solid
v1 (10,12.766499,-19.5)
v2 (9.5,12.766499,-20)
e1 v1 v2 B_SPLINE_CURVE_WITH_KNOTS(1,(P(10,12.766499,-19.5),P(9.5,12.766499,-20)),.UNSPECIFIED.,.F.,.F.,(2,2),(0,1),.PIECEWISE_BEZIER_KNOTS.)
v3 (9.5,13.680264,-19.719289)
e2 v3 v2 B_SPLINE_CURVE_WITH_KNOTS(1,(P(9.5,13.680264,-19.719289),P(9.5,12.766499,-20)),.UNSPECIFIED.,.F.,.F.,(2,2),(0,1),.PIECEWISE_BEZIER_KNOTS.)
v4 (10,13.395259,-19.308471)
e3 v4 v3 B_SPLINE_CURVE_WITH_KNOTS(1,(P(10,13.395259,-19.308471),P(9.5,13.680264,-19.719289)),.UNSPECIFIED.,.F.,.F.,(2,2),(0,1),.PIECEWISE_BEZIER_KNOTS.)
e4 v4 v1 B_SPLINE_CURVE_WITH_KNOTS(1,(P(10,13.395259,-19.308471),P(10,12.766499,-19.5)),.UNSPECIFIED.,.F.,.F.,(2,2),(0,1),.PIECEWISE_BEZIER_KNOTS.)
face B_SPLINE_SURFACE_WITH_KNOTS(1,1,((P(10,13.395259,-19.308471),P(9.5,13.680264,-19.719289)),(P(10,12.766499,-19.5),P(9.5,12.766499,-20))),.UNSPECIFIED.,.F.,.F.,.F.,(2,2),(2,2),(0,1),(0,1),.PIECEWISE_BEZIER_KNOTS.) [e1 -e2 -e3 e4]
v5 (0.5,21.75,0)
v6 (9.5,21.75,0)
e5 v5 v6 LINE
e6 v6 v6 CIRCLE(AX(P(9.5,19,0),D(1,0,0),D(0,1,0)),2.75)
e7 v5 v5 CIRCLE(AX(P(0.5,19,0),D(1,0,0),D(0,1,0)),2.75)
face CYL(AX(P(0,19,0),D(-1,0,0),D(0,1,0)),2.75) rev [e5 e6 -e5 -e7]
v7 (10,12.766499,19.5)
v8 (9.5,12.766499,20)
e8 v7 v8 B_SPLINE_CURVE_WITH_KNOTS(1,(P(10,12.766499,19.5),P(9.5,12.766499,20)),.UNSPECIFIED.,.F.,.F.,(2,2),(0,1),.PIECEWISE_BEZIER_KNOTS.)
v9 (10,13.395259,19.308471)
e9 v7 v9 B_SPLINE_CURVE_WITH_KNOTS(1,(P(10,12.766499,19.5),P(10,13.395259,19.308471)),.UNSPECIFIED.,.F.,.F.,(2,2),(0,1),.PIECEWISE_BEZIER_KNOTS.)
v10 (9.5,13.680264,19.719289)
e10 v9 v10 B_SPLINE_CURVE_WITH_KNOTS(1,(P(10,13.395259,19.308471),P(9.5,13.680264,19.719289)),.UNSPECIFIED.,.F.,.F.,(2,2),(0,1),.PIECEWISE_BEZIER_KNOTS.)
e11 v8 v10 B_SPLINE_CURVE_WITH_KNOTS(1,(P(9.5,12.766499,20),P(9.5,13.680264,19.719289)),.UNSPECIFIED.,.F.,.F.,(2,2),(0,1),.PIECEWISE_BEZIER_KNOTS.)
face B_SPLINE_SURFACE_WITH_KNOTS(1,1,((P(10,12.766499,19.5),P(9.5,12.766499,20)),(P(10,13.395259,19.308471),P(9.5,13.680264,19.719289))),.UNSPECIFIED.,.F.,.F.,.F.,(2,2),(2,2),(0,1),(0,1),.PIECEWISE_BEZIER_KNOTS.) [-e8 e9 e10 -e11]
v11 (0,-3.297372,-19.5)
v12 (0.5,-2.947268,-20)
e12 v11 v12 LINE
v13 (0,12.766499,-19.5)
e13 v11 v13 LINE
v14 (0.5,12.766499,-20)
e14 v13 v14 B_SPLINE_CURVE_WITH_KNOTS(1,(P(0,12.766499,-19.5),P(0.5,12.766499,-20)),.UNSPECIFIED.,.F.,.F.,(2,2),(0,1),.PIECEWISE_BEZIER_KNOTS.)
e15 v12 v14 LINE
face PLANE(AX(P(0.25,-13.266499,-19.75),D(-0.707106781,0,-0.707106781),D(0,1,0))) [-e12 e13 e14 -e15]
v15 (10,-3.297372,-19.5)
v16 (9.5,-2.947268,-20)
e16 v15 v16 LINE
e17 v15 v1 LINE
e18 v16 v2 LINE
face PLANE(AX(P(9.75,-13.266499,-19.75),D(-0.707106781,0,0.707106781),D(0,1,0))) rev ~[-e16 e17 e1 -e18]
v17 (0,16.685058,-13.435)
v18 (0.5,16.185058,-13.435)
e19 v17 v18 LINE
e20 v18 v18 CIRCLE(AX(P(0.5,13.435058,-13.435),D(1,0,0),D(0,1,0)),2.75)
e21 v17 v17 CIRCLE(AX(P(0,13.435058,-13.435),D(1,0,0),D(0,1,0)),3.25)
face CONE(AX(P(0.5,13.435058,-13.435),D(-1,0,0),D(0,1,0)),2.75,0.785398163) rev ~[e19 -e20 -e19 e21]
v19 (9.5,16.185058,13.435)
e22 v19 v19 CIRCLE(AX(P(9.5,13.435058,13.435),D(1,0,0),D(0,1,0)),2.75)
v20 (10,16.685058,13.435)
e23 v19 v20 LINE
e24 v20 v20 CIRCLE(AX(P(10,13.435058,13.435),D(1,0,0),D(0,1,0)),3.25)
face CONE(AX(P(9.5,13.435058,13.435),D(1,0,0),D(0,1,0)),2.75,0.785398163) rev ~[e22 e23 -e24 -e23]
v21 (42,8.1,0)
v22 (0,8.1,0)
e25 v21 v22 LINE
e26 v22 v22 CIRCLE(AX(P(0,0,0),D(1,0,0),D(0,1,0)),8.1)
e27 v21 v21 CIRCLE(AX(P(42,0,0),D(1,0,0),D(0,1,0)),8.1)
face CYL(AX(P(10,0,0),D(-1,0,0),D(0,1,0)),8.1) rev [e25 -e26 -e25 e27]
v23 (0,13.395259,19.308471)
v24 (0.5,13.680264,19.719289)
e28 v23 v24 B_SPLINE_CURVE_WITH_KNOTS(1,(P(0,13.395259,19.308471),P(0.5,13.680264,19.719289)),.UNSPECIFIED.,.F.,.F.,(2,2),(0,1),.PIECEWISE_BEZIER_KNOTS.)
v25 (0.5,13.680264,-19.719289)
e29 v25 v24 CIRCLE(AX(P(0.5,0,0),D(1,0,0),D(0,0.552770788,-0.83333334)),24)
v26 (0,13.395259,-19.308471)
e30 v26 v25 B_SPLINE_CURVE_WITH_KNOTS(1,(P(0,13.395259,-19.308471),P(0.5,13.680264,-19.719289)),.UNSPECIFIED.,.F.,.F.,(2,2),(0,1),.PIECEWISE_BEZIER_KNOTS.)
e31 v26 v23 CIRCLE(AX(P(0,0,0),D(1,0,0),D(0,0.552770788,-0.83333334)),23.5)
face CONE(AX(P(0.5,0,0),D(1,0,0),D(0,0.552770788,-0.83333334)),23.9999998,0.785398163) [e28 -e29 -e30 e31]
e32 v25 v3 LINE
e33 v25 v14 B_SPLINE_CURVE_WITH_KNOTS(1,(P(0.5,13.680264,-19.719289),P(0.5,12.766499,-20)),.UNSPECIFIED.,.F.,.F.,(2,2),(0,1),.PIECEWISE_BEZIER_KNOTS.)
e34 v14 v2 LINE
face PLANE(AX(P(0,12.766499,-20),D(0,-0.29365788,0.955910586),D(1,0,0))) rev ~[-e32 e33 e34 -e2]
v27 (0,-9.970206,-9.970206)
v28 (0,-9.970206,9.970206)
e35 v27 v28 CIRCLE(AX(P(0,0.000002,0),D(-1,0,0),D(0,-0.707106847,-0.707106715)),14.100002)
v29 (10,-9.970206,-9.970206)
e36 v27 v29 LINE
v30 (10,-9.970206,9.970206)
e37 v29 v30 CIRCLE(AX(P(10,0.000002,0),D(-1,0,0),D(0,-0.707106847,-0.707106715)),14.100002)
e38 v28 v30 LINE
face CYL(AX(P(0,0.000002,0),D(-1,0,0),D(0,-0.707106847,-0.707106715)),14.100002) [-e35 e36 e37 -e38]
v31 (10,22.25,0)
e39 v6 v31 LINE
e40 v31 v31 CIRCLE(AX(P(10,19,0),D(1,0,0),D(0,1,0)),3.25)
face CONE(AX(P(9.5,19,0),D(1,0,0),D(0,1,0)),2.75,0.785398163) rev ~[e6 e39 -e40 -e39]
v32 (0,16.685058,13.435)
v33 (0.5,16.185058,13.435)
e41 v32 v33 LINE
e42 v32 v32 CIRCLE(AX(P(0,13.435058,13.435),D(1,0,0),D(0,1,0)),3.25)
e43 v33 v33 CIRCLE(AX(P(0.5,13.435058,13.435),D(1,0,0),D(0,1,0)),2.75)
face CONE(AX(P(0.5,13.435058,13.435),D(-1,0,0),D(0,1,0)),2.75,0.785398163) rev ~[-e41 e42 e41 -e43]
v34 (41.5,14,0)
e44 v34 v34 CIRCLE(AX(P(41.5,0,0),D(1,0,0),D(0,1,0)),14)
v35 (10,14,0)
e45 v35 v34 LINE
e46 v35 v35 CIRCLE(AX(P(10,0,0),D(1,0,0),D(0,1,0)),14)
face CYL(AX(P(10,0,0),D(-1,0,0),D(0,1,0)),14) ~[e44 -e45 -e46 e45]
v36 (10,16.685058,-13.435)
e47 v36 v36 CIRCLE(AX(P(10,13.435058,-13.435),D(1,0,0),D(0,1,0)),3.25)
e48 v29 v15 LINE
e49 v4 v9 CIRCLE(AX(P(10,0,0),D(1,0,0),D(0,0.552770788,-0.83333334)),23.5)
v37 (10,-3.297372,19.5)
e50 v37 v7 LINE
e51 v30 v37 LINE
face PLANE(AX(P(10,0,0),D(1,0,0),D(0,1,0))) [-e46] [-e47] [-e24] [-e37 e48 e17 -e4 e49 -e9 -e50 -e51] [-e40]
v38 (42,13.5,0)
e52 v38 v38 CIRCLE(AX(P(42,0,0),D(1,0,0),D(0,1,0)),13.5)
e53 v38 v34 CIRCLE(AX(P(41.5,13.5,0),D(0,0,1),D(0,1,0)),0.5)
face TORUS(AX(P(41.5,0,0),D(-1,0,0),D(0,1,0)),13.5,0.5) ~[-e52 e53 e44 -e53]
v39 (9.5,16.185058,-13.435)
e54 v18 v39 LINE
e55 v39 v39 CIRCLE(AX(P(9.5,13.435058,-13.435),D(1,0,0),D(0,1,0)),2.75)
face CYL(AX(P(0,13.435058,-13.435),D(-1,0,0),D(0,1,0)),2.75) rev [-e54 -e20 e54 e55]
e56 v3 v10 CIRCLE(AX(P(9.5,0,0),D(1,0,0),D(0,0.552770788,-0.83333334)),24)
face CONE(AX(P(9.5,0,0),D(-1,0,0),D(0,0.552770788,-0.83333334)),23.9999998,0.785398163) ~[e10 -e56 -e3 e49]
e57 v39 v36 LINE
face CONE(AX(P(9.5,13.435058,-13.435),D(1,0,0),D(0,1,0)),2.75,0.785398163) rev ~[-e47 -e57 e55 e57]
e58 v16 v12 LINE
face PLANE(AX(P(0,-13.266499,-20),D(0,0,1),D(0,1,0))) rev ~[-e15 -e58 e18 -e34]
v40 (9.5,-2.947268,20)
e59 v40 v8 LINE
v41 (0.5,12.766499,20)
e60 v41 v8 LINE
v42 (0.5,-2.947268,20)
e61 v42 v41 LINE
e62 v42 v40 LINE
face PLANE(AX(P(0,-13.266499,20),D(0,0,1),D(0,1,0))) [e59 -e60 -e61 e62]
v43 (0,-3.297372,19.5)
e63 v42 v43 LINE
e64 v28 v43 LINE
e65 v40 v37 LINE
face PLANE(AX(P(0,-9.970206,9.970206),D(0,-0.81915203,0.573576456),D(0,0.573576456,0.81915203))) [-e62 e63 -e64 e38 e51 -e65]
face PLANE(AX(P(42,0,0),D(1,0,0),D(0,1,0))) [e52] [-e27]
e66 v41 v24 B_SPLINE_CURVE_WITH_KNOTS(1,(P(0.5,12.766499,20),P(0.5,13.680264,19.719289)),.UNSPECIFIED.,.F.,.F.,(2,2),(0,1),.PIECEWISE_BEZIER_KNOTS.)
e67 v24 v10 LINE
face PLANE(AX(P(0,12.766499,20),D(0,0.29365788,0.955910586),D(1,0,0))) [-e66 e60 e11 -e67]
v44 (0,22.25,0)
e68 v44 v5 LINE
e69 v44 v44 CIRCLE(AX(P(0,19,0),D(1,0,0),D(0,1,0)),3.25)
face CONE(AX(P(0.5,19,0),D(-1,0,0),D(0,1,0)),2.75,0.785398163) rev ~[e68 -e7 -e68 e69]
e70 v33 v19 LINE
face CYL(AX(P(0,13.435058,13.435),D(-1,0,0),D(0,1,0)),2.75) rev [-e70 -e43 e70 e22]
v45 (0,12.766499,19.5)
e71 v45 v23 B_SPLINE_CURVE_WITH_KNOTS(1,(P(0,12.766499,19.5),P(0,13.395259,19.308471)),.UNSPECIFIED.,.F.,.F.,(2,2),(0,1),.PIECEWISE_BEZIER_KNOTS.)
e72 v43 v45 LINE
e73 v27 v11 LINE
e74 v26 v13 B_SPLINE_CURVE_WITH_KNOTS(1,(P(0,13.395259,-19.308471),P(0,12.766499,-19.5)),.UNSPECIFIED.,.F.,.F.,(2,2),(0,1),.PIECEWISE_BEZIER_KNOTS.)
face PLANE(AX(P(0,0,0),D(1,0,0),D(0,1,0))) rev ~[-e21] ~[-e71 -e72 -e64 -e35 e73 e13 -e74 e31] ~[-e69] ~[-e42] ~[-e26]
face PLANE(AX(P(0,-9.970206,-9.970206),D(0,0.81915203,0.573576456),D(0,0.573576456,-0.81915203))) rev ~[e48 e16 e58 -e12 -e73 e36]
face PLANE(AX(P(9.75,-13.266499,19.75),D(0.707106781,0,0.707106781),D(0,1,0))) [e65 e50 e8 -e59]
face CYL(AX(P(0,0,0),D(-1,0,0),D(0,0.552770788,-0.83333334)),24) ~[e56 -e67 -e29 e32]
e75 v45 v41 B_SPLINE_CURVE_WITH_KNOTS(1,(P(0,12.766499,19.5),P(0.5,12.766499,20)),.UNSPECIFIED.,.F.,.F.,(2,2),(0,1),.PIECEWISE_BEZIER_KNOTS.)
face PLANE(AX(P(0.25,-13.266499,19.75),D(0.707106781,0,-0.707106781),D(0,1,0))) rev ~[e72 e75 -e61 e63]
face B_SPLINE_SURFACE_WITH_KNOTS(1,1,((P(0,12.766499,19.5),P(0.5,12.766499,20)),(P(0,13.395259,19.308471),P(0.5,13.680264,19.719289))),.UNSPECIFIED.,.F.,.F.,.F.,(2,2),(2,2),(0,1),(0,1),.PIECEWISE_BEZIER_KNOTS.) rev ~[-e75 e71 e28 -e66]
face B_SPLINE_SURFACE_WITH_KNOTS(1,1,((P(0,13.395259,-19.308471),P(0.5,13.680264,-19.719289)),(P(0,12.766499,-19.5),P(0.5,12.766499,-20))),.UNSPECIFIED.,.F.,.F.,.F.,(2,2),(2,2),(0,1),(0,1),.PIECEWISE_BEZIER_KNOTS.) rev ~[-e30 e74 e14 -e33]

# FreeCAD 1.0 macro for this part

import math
import FreeCAD as App
import Part
import Sketcher
from FreeCAD import Vector
Q = App.Units.Quantity


def edges_at(feature, points):
    """Names of the edges that pass closest to the given points."""
    edges = feature.Shape.Edges
    near = lambda p: min(range(len(edges)), key=lambda i: edges[i].distToShape(Part.Vertex(*p))[0])
    return sorted({f"Edge{near(p) + 1}" for p in points})

doc = App.newDocument("Part")
body = doc.addObject("PartDesign::Body", "Body")

# Sketch on YZ plane
sketch1 = body.newObject("Sketcher::SketchObject", "Sketch")
sketch1.AttachmentSupport = (doc.getObject("YZ_Plane"), [""])
sketch1.MapMode = "FlatFace"
sketch1.addGeometry([
    Part.ArcOfCircle(Part.Circle(Vector(0, 0, 0), Vector(0, 0, 1), 24), math.radians(124), math.radians(236)),  # 0
    Part.LineSegment(Vector(-13.3, -20, 0), Vector(13.3, -20, 0)),  # 1
    Part.ArcOfCircle(Part.Circle(Vector(0, 0, 0), Vector(0, 0, 1), 24), math.radians(-56), math.radians(56)),  # 2
    Part.LineSegment(Vector(13.3, 20, 0), Vector(-13.3, 20, 0)),  # 3
    Part.Circle(Vector(-13.4, -13.4, 0), Vector(0, 0, 1), 2.8),  # 4
    Part.Circle(Vector(13.4, -13.4, 0), Vector(0, 0, 1), 2.8),  # 5
    Part.Circle(Vector(-19, 0, 0), Vector(0, 0, 1), 2.8),  # 6
    Part.Circle(Vector(-13.4, 13.4, 0), Vector(0, 0, 1), 2.8),  # 7
    Part.Circle(Vector(0, 0, 0), Vector(0, 0, 1), 8.1),  # 8
    Part.Circle(Vector(19, 0, 0), Vector(0, 0, 1), 2.8),  # 9
    Part.Circle(Vector(13.4, 13.4, 0), Vector(0, 0, 1), 2.8),  # 10
], False)
sketch1.addConstraint([
    Sketcher.Constraint("Coincident", 0, 2, 1, 1),
    Sketcher.Constraint("Coincident", 1, 2, 2, 1),
    Sketcher.Constraint("Coincident", 2, 2, 3, 1),
    Sketcher.Constraint("Coincident", 3, 2, 0, 1),
    Sketcher.Constraint("Horizontal", 1),
    Sketcher.Constraint("Horizontal", 3),
    Sketcher.Constraint("Coincident", 0, 3, -1, 1),
    Sketcher.Constraint("Coincident", 2, 3, -1, 1),
    Sketcher.Constraint("Coincident", 8, 3, -1, 1),
    Sketcher.Constraint("Equal", 0, 2),
    Sketcher.Constraint("Equal", 4, 5),
    Sketcher.Constraint("Equal", 5, 6),
    Sketcher.Constraint("Equal", 6, 7),
    Sketcher.Constraint("Equal", 7, 9),
    Sketcher.Constraint("Equal", 9, 10),
    Sketcher.Constraint("Symmetric", 5, 3, 7, 3, -1, 1),
    Sketcher.Constraint("Symmetric", 6, 3, 9, 3, -1, 1),
    Sketcher.Constraint("Symmetric", 4, 3, 10, 3, -1, 1),
    Sketcher.Constraint("Symmetric", 4, 3, 5, 3, -2),
    Sketcher.Constraint("PointOnObject", 6, 3, -1),
    Sketcher.Constraint("Vertical", 1, 2, 2, 2),
    Sketcher.Constraint("Radius", 0, Q("24 mm")),
    Sketcher.Constraint("Diameter", 4, Q("5.5 mm")),
    Sketcher.Constraint("Diameter", 8, Q("16.2 mm")),
    Sketcher.Constraint("DistanceX", 6, 3, -1, 1, Q("19 mm")),
    Sketcher.Constraint("DistanceY", 0, 2, -1, 1, Q("20 mm")),
    Sketcher.Constraint("DistanceY", 4, 3, 7, 3, Q("26.87 mm")),
    Sketcher.Constraint("DistanceX", 4, 3, 2, 3, Q("13.435058 mm")),
])
pad1 = body.newObject("PartDesign::Pad", "Pad")
pad1.Profile = sketch1
pad1.Length = 10

# Sketch on YZ plane
sketch2 = body.newObject("Sketcher::SketchObject", "Sketch001")
sketch2.AttachmentSupport = (doc.getObject("YZ_Plane"), [""])
sketch2.MapMode = "FlatFace"
sketch2.AttachmentOffset = App.Placement(Vector(0, 0, 10), App.Rotation())
sketch2.addGeometry([
    Part.Circle(Vector(0, 0, 0), Vector(0, 0, 1), 14),
    Part.Circle(Vector(0, 0, 0), Vector(0, 0, 1), 8),
], False)
sketch2.addConstraint([
    Sketcher.Constraint("Coincident", 0, 3, -1, 1),
    Sketcher.Constraint("Coincident", 1, 3, -1, 1),
    Sketcher.Constraint("Diameter", 0, Q("28 mm")),
    Sketcher.Constraint("Diameter", 1, Q("16.2 mm")),
])
pad2 = body.newObject("PartDesign::Pad", "Pad001")
pad2.Profile = sketch2
pad2.Length = 32
doc.recompute()

chamfer = body.newObject("PartDesign::Chamfer", "Chamfer")
chamfer.Base = (pad2, edges_at(pad2, [
    (0, -16.185, -13.435),
    (10, -16.185, -13.435),
    (0, -21.75, 0),
    (10, -21.75, 0),
    (0, -16.185, 13.435),
    (10, -16.185, 13.435),
    (0, 10.685, 13.435),
    (10, 10.685, 13.435),
    (0, 16.25, 0),
    (10, 16.25, 0),
    (0, 10.685, -13.435),
    (10, 10.685, -13.435),
]))
chamfer.Size = 0.5
doc.recompute()

fillet = body.newObject("PartDesign::Fillet", "Fillet")
fillet.Base = (chamfer, edges_at(chamfer, [(42, -14, 0)]))
fillet.Radius = 0.5
doc.recompute()

chamfer2 = body.newObject("PartDesign::Chamfer", "Chamfer001")
chamfer2.Base = (fillet, edges_at(fillet, [
    (5, -13.266, 20),
    (5, -13.266, -20),
    (0, -24, 0),
    (10, -24, 0),
    (5, 13.266, 20),
    (0, 0, 20),
    (10, 0, 20),
    (5, 13.266, -20),
    (0, 24, 0),
    (10, 24, 0),
    (0, 0, -20),
    (10, 0, -20),
]))
chamfer2.Size = 0.5

# Sketch on YZ plane
sketch3 = body.newObject("Sketcher::SketchObject", "Sketch002")
sketch3.AttachmentSupport = (doc.getObject("YZ_Plane"), [""])
sketch3.MapMode = "FlatFace"
sketch3.addGeometry([
    Part.ArcOfCircle(Part.Circle(Vector(0, 0, 0), Vector(0, 0, 1), 14), math.radians(135), math.radians(225)),  # 0
    Part.LineSegment(Vector(-10, -10, 0), Vector(-3, -20, 0)),  # 1
    Part.LineSegment(Vector(-3, -20, 0), Vector(18, -20, 0)),  # 2
    Part.LineSegment(Vector(18, -20, 0), Vector(18, -27, 0)),  # 3
    Part.LineSegment(Vector(18, -27, 0), Vector(0, -27, 0)),  # 4
    Part.ArcOfCircle(Part.Circle(Vector(0, 0, 0), Vector(0, 0, 1), 27), math.radians(90), math.radians(270)),  # 5
    Part.LineSegment(Vector(0, 27, 0), Vector(18, 27, 0)),  # 6
    Part.LineSegment(Vector(18, 27, 0), Vector(18, 20, 0)),  # 7
    Part.LineSegment(Vector(18, 20, 0), Vector(-3, 20, 0)),  # 8
    Part.LineSegment(Vector(-3, 20, 0), Vector(-10, 10, 0)),  # 9
], False)
sketch3.addConstraint([
    Sketcher.Constraint("Coincident", 0, 2, 1, 1),
    Sketcher.Constraint("Coincident", 1, 2, 2, 1),
    Sketcher.Constraint("Coincident", 2, 2, 3, 1),
    Sketcher.Constraint("Coincident", 3, 2, 4, 1),
    Sketcher.Constraint("Tangent", 4, 2, 5, 2),
    Sketcher.Constraint("Tangent", 5, 1, 6, 1),
    Sketcher.Constraint("Coincident", 6, 2, 7, 1),
    Sketcher.Constraint("Coincident", 7, 2, 8, 1),
    Sketcher.Constraint("Coincident", 8, 2, 9, 1),
    Sketcher.Constraint("Coincident", 9, 2, 0, 1),
    Sketcher.Constraint("Horizontal", 2),
    Sketcher.Constraint("Vertical", 3),
    Sketcher.Constraint("Horizontal", 4),
    Sketcher.Constraint("Horizontal", 6),
    Sketcher.Constraint("Vertical", 7),
    Sketcher.Constraint("Horizontal", 8),
    Sketcher.Constraint("Coincident", 0, 3, -1, 1),
    Sketcher.Constraint("Coincident", 5, 3, -1, 1),
    Sketcher.Constraint("Symmetric", 2, 2, 7, 2, -1),
    Sketcher.Constraint("Vertical", 1, 2, 8, 2),
    Sketcher.Constraint("Vertical", 0, 2, 9, 2),
    Sketcher.Constraint("Radius", 5, Q("27 mm")),
    Sketcher.Constraint("Radius", 0, Q("14.100002 mm")),
    Sketcher.Constraint("DistanceX", 4, 2, 4, 1, Q("18 mm")),
    Sketcher.Constraint("Angle", 1, Q("-54.999999 deg")),
    Sketcher.Constraint("DistanceY", 3, 2, 3, 1, Q("6.7 mm")),
    Sketcher.Constraint("DistanceX", 0, 2, 1, 2, Q("7.233 mm")),
])
pocket1 = body.newObject("PartDesign::Pocket", "Pocket")
pocket1.Profile = sketch3
pocket1.Length = 10
pocket1.Reversed = True

doc.recompute()
